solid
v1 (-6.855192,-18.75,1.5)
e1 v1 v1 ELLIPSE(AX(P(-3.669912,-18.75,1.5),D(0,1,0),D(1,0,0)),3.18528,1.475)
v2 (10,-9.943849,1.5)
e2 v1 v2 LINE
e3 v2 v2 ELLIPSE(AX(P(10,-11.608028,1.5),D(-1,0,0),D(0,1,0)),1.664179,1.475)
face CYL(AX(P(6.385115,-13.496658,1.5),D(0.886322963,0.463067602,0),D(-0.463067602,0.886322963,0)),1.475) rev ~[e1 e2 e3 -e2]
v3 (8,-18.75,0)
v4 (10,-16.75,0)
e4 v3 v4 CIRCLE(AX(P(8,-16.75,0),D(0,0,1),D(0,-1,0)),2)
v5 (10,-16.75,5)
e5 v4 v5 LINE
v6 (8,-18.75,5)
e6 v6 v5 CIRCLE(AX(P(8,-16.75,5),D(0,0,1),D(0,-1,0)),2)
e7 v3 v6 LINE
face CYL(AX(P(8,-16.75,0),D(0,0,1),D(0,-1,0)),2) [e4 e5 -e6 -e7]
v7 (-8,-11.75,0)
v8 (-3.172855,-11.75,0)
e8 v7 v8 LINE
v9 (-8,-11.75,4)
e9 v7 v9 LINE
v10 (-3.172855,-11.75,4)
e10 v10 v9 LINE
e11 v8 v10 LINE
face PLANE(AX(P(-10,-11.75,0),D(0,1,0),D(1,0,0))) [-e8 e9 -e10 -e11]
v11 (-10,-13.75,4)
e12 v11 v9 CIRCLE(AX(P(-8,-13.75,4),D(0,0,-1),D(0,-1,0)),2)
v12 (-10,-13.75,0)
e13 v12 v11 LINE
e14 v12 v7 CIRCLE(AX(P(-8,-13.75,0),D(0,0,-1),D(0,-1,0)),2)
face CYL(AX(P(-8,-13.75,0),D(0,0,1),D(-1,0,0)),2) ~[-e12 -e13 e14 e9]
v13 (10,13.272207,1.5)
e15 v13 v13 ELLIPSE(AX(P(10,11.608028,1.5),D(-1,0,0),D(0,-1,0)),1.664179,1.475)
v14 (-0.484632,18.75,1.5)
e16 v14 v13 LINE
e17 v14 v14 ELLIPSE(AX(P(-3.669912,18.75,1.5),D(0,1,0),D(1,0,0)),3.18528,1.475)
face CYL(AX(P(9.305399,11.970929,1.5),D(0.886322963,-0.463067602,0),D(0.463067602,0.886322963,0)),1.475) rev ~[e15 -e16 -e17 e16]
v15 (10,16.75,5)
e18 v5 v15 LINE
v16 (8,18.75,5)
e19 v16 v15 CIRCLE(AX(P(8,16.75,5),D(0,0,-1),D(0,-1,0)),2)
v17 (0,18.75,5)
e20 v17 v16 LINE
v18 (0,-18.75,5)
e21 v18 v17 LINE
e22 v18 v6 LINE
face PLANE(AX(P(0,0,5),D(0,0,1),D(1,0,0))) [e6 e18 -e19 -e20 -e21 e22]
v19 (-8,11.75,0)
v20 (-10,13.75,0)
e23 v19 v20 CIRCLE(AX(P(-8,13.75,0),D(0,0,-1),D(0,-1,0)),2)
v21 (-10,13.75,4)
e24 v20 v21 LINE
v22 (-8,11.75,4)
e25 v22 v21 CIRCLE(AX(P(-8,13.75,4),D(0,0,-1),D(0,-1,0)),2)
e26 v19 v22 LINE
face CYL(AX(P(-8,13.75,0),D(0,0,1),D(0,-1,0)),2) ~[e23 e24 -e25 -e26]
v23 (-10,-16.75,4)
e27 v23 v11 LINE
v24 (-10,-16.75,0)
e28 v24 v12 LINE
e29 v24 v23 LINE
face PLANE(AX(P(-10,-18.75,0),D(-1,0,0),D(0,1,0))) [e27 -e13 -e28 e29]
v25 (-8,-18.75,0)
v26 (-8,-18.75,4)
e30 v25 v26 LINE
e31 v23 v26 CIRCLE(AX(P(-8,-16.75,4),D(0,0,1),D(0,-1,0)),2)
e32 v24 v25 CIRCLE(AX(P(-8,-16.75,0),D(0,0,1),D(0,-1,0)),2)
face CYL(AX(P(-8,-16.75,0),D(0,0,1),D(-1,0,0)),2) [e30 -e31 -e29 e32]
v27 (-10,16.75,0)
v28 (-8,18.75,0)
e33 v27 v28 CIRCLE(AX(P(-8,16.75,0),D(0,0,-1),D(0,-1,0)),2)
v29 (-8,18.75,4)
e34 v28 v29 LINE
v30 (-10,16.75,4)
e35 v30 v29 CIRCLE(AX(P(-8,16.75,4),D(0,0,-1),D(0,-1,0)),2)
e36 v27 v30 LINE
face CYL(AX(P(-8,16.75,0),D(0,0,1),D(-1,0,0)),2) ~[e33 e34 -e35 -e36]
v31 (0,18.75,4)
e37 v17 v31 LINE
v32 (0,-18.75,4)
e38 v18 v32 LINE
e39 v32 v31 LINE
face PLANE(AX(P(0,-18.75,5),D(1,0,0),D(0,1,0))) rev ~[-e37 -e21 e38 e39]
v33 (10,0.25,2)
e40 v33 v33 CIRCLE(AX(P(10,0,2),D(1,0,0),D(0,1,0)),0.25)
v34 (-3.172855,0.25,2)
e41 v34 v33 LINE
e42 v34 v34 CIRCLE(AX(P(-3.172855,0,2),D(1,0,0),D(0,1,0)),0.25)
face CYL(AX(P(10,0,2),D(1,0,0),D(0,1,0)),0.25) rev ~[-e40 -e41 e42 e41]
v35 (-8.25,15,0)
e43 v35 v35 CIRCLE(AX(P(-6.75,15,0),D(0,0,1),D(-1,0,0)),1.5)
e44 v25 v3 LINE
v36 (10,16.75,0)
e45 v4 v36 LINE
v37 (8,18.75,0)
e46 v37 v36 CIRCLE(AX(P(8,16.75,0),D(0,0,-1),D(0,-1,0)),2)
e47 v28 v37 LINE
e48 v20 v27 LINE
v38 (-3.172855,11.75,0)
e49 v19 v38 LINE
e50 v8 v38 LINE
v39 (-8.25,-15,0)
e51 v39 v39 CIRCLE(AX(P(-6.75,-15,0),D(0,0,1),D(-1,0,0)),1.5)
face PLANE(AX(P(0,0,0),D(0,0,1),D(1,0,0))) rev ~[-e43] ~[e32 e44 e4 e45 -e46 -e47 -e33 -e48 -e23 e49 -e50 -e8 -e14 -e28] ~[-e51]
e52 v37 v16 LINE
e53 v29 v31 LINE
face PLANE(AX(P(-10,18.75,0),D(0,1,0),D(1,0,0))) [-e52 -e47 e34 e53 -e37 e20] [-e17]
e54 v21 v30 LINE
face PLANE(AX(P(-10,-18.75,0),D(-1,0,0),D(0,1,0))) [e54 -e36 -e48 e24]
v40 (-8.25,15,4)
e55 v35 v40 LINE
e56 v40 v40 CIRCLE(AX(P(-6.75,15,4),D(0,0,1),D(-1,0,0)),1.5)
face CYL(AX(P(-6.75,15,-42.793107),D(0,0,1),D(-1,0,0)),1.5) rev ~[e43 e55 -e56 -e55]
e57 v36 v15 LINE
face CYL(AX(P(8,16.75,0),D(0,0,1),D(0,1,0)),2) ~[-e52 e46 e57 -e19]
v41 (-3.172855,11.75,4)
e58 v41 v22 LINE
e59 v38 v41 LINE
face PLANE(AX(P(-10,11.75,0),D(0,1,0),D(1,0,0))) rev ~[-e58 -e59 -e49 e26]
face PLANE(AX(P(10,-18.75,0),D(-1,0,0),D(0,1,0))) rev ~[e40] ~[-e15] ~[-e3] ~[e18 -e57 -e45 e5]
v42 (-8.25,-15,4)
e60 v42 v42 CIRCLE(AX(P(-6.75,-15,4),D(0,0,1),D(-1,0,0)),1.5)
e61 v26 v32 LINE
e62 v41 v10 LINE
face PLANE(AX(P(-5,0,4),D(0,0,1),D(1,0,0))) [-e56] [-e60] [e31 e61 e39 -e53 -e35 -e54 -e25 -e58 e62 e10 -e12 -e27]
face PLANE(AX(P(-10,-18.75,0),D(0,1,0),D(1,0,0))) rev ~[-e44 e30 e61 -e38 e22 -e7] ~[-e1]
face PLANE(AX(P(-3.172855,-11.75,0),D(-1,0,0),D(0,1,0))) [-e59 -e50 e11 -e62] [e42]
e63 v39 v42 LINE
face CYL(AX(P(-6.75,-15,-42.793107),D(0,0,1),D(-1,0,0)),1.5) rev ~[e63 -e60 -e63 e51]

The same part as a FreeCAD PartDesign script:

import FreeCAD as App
import Part
import Sketcher

V = App.Vector


def edges_at(feature, points):
    """Names of the edges that pass closest to the given points."""
    edges = feature.Shape.Edges
    near = lambda p: min(range(len(edges)), key=lambda i: edges[i].distToShape(Part.Vertex(*p))[0])
    return sorted({f"Edge{near(p) + 1}" for p in points})

doc = App.newDocument("Part")
body = doc.addObject("PartDesign::Body", "Body")

sketch1 = doc.addObject("Sketcher::SketchObject", "Sketch")
body.addObject(sketch1)
sketch1.AttachmentSupport = (doc.XY_Plane, [""])
sketch1.MapMode = "FlatFace"
sketch1.addGeometry([
    Part.LineSegment(V(-10, 19, 0), V(-10, -19, 0)),
    Part.LineSegment(V(-10, -19, 0), V(10, -19, 0)),
    Part.LineSegment(V(10, -19, 0), V(10, 19, 0)),
    Part.LineSegment(V(10, 19, 0), V(-10, 19, 0)),
], False)
sketch1.addConstraint([
    Sketcher.Constraint("Coincident", 0, 2, 1, 1),
    Sketcher.Constraint("Coincident", 1, 2, 2, 1),
    Sketcher.Constraint("Coincident", 2, 2, 3, 1),
    Sketcher.Constraint("Coincident", 3, 2, 0, 1),
    Sketcher.Constraint("Vertical", 0),
    Sketcher.Constraint("Horizontal", 1),
    Sketcher.Constraint("Vertical", 2),
    Sketcher.Constraint("Horizontal", 3),
    Sketcher.Constraint("Symmetric", 0, 2, 2, 2, -1, 1),
    Sketcher.Constraint("DistanceX", 1, 1, 1, 2, 20.0),
    Sketcher.Constraint("DistanceY", 0, 2, 0, 1, 37.5),
])
pad1 = doc.addObject("PartDesign::Pad", "Pad")
body.addObject(pad1)
pad1.Profile = sketch1
pad1.Length = 5

sketch2 = doc.addObject("Sketcher::SketchObject", "Sketch001")
body.addObject(sketch2)
sketch2.AttachmentSupport = (doc.XY_Plane, [""])
sketch2.MapMode = "FlatFace"
sketch2.AttachmentOffset = App.Placement(V(0, 0, 5), App.Rotation())
sketch2.addGeometry([
    Part.LineSegment(V(-10, 19, 0), V(-10, -19, 0)),
    Part.LineSegment(V(-10, -19, 0), V(0, -19, 0)),
    Part.LineSegment(V(0, -19, 0), V(0, 19, 0)),
    Part.LineSegment(V(0, 19, 0), V(-10, 19, 0)),
], False)
sketch2.addConstraint([
    Sketcher.Constraint("Coincident", 0, 2, 1, 1),
    Sketcher.Constraint("Coincident", 1, 2, 2, 1),
    Sketcher.Constraint("Coincident", 2, 2, 3, 1),
    Sketcher.Constraint("Coincident", 3, 2, 0, 1),
    Sketcher.Constraint("Vertical", 0),
    Sketcher.Constraint("Horizontal", 1),
    Sketcher.Constraint("Vertical", 2),
    Sketcher.Constraint("Horizontal", 3),
    Sketcher.Constraint("Symmetric", 1, 2, 2, 2, -1, 1),
    Sketcher.Constraint("DistanceX", 1, 1, 1, 2, 10.0),
    Sketcher.Constraint("DistanceY", 0, 2, 0, 1, 37.5),
])
pocket1 = doc.addObject("PartDesign::Pocket", "Pocket")
body.addObject(pocket1)
pocket1.Profile = sketch2
pocket1.Length = 1

sketch3 = doc.addObject("Sketcher::SketchObject", "Sketch002")
body.addObject(sketch3)
sketch3.AttachmentSupport = (doc.XY_Plane, [""])
sketch3.MapMode = "FlatFace"
sketch3.addGeometry([
    Part.Circle(V(-6.8, -15, 0), V(0, 0, 1), 1.5),
    Part.Circle(V(-6.8, 15, 0), V(0, 0, 1), 1.5),
], False)
sketch3.addConstraint([
    Sketcher.Constraint("Equal", 0, 1),
    Sketcher.Constraint("Symmetric", 0, 3, 1, 3, -1),
    Sketcher.Constraint("Diameter", 0, 3.0),
    Sketcher.Constraint("DistanceY", 0, 3, -1, 1, 15.0),
    Sketcher.Constraint("DistanceX", 0, 3, -1, 1, 6.75),
])
doc.recompute()
hole = doc.addObject("PartDesign::Hole", "Hole")
body.addObject(hole)
hole.Profile = sketch3
hole.ThreadType = "None"
hole.Diameter = 3
hole.DepthType = "ThroughAll"
hole.Reversed = True

sketch4 = doc.addObject("Sketcher::SketchObject", "Sketch003")
body.addObject(sketch4)
sketch4.AttachmentSupport = (doc.XY_Plane, [""])
sketch4.MapMode = "FlatFace"
sketch4.addGeometry([
    Part.LineSegment(V(-10, 12, 0), V(-10, -12, 0)),
    Part.LineSegment(V(-10, -12, 0), V(-3, -12, 0)),
    Part.LineSegment(V(-3, -12, 0), V(-3, 12, 0)),
    Part.LineSegment(V(-3, 12, 0), V(-10, 12, 0)),
], False)
sketch4.addConstraint([
    Sketcher.Constraint("Coincident", 0, 2, 1, 1),
    Sketcher.Constraint("Coincident", 1, 2, 2, 1),
    Sketcher.Constraint("Coincident", 2, 2, 3, 1),
    Sketcher.Constraint("Coincident", 3, 2, 0, 1),
    Sketcher.Constraint("Vertical", 0),
    Sketcher.Constraint("Horizontal", 1),
    Sketcher.Constraint("Vertical", 2),
    Sketcher.Constraint("Horizontal", 3),
    Sketcher.Constraint("DistanceY", 0, 2, 0, 1, 23.5),
    Sketcher.Constraint("DistanceX", 0, 2, -1, 1, 10.0),
    Sketcher.Constraint("DistanceY", 0, 2, -1, 1, 11.75),
    Sketcher.Constraint("DistanceX", 1, 1, 1, 2, 6.827145),
])
pocket2 = doc.addObject("PartDesign::Pocket", "Pocket001")
body.addObject(pocket2)
pocket2.Profile = sketch4
pocket2.Length = 6
pocket2.Reversed = True
doc.recompute()

fillet = doc.addObject("PartDesign::Fillet", "Fillet")
body.addObject(fillet)
fillet.Base = (pocket2, edges_at(pocket2, [
    (-10, -18.75, 2),
    (10, -18.75, 2.5),
    (10, 18.75, 2.5),
    (-10, 18.75, 2),
    (-10, -11.75, 2),
    (-10, 11.75, 2),
]))
fillet.Radius = 2

sketch5 = doc.addObject("Sketcher::SketchObject", "Sketch004")
body.addObject(sketch5)
sketch5.Placement = App.Placement(V(2.396829, -1.252245, 0), App.Rotation(V(0.463067602, 0.886322963, 0), V(0, 0, 0.999999999), V(0.886322963, -0.463067602, 0), "ZXY"))
sketch5.addGeometry(Part.Circle(V(14.9, 1.5, 0), V(0, 0, 1), 1.5), False)
sketch5.addConstraint([
    Sketcher.Constraint("Diameter", 0, 2.95),
    Sketcher.Constraint("DistanceY", -1, 1, 0, 3, 1.5),
    Sketcher.Constraint("DistanceX", -1, 1, 0, 3, 14.919138),
])
pocket3 = doc.addObject("PartDesign::Pocket", "Pocket002")
body.addObject(pocket3)
pocket3.Profile = sketch5
pocket3.Length = 52
pocket3.Midplane = True

sketch6 = doc.addObject("Sketcher::SketchObject", "Sketch005")
body.addObject(sketch6)
sketch6.Placement = App.Placement(V(-0.523454, -0.273484, 0), App.Rotation(V(-0.463067602, 0.886322963, 0), V(0, 0, 0.999999999), V(0.886322963, 0.463067602, 0), "ZXY"))
sketch6.addGeometry(Part.Circle(V(-14.9, 1.5, 0), V(0, 0, 1), 1.5), False)
sketch6.addConstraint([
    Sketcher.Constraint("Diameter", 0, 2.95),
    Sketcher.Constraint("DistanceY", -1, 1, 0, 3, 1.5),
    Sketcher.Constraint("DistanceX", 0, 3, -1, 1, 14.919138),
])
pocket4 = doc.addObject("PartDesign::Pocket", "Pocket003")
body.addObject(pocket4)
pocket4.Profile = sketch6
pocket4.Length = 55
pocket4.Midplane = True

sketch7 = doc.addObject("Sketcher::SketchObject", "Sketch006")
body.addObject(sketch7)
sketch7.AttachmentSupport = (doc.YZ_Plane, [""])
sketch7.MapMode = "FlatFace"
sketch7.AttachmentOffset = App.Placement(V(0, 0, 10), App.Rotation())
sketch7.addGeometry(Part.Circle(V(0, 2, 0), V(0, 0, 1), 0.25), False)
sketch7.addConstraint([
    Sketcher.Constraint("PointOnObject", 0, 3, -2),
    Sketcher.Constraint("Diameter", 0, 0.5),
    Sketcher.Constraint("DistanceY", -1, 1, 0, 3, 2.0),
])
pocket5 = doc.addObject("PartDesign::Pocket", "Pocket004")
body.addObject(pocket5)
pocket5.Profile = sketch7
pocket5.Length = 55
pocket5.Midplane = True

doc.recompute()
